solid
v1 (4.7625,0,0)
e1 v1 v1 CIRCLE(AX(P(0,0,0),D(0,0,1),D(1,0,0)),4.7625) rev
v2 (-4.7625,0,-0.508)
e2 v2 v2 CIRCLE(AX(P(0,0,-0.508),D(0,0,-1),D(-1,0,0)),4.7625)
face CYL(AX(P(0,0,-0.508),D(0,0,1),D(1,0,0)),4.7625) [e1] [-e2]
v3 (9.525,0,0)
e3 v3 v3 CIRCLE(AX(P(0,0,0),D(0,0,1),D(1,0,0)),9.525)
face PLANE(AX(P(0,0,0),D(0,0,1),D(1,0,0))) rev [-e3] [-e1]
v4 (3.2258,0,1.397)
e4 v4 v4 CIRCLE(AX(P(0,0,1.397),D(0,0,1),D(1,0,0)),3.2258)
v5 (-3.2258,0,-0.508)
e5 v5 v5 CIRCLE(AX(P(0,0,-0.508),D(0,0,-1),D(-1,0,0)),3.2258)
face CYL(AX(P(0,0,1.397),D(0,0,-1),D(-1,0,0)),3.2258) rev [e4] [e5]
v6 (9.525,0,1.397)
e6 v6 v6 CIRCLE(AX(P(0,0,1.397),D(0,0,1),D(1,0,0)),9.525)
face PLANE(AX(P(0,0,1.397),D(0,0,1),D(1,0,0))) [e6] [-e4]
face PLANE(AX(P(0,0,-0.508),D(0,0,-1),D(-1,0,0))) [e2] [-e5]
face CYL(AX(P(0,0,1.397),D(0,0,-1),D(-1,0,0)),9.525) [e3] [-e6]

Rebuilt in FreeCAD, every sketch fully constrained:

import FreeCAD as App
import Part
import Sketcher
from FreeCAD import Vector
Q = App.Units.Quantity

doc = App.newDocument("Part")
body = doc.addObject("PartDesign::Body", "Body")

# Sketch on XY plane
sketch1 = body.newObject("Sketcher::SketchObject", "Sketch")
sketch1.AttachmentSupport = (doc.getObject("XY_Plane"), [""])
sketch1.MapMode = "FlatFace"
sketch1.addGeometry([
    Part.Circle(Vector(0, 0, 0), Vector(0, 0, 1), 9.5),
    Part.Circle(Vector(0, 0, 0), Vector(0, 0, 1), 3.2),
], False)
sketch1.addConstraint([
    Sketcher.Constraint("Coincident", 0, 3, -1, 1),
    Sketcher.Constraint("Coincident", 1, 3, -1, 1),
    Sketcher.Constraint("Diameter", 0, Q("0.75 in")),
    Sketcher.Constraint("Diameter", 1, Q("0.254 in")),
])
pad1 = body.newObject("PartDesign::Pad", "Pad")
pad1.Profile = sketch1
pad1.Length = Q("0.055 in")

# Sketch on XY plane
sketch2 = body.newObject("Sketcher::SketchObject", "Sketch001")
sketch2.AttachmentSupport = (doc.getObject("XY_Plane"), [""])
sketch2.MapMode = "FlatFace"
sketch2.AttachmentOffset = App.Placement(Vector(0, 0, -0.02 * 25.4), App.Rotation())
sketch2.addGeometry([
    Part.Circle(Vector(0, 0, 0), Vector(0, 0, 1), 4.8),
    Part.Circle(Vector(0, 0, 0), Vector(0, 0, 1), 3.2),
], False)
sketch2.addConstraint([
    Sketcher.Constraint("Coincident", 0, 3, -1, 1),
    Sketcher.Constraint("Coincident", 1, 3, -1, 1),
    Sketcher.Constraint("Diameter", 0, Q("0.375 in")),
    Sketcher.Constraint("Diameter", 1, Q("0.254 in")),
])
pad2 = body.newObject("PartDesign::Pad", "Pad001")
pad2.Profile = sketch2
pad2.Length = Q("0.02 in")

doc.recompute()
